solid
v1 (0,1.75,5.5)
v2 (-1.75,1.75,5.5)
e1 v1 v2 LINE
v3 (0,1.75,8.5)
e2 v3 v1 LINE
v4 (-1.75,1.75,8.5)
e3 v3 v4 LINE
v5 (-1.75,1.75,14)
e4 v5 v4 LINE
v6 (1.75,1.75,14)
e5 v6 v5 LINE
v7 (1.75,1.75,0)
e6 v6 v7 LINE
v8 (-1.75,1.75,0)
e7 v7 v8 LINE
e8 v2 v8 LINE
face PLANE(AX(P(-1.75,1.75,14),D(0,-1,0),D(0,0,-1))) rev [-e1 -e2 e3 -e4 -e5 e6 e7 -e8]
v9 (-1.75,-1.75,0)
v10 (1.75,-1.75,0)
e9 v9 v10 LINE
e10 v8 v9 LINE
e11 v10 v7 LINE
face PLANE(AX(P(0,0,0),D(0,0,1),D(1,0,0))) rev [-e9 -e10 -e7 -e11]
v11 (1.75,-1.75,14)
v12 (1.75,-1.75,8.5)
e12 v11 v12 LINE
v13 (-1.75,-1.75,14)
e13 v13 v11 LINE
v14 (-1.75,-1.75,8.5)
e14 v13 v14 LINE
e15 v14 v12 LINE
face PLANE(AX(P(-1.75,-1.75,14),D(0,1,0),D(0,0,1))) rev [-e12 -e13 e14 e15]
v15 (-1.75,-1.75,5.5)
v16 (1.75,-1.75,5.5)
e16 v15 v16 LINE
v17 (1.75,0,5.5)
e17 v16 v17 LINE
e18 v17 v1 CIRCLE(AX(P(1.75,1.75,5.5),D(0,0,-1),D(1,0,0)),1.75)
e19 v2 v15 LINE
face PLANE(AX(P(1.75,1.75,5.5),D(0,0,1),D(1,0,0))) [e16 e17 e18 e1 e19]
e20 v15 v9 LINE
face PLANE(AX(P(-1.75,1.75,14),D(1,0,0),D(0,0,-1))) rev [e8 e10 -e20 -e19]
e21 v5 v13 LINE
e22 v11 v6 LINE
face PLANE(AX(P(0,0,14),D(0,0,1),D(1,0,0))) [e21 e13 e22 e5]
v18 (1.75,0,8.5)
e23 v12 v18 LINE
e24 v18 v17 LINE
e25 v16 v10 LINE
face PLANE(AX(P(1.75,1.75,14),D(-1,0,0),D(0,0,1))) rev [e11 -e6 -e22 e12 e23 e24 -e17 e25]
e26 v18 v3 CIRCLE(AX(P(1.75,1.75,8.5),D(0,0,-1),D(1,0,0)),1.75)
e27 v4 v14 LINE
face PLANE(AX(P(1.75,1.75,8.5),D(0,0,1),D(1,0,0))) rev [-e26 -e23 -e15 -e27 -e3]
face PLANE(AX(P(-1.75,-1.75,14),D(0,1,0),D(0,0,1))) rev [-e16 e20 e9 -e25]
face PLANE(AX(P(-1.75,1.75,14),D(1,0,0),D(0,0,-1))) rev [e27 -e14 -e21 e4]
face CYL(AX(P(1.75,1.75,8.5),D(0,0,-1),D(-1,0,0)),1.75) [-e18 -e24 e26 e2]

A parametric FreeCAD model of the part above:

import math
import FreeCAD as App
import Part
import Sketcher

V = App.Vector


def add_polygon(sketch, points):
    """Adds a closed chain of lines whose ends are joined by coincident constraints."""
    first, n = sketch.GeometryCount, len(points)
    for a, b in zip(points, points[1:] + points[:1]):
        sketch.addGeometry(Part.LineSegment(App.Vector(*a, 0), App.Vector(*b, 0)), False)
    for i in range(n):
        sketch.addConstraint(Sketcher.Constraint("Coincident", first + i, 2, first + (i + 1) % n, 1))

doc = App.newDocument("Part")
params = doc.addObject("Spreadsheet::Sheet", "Params")
for row, (alias, value) in enumerate([
    ("sketch1_width", "3.5 mm"),
    ("pad1_length", "14 mm"),
    ("sketch2_radius", "1.75 mm"),
    ("pocket1_length", "1.5 mm"),
    ("pocket1_length2", "1.5 mm"),
], start=1):
    params.set(f"A{row}", alias)
    params.set(f"B{row}", "=" + value)
    params.setAlias(f"B{row}", alias)

body = doc.addObject("PartDesign::Body", "Body")

sketch1 = body.newObject("Sketcher::SketchObject", "Sketch")
sketch1.AttachmentSupport = (doc.getObject("XY_Plane"), [""])
sketch1.MapMode = "FlatFace"
add_polygon(sketch1, [(-1.8, 1.8), (-1.8, -1.8), (1.8, -1.8), (1.8, 1.8)])
sketch1.addConstraint([
    Sketcher.Constraint("Vertical", 0),
    Sketcher.Constraint("Horizontal", 1),
    Sketcher.Constraint("Vertical", 2),
    Sketcher.Constraint("Horizontal", 3),
    Sketcher.Constraint("Symmetric", 0, 2, 2, 2, -1, 1),
    Sketcher.Constraint("Equal", 3, 0),
    Sketcher.Constraint("DistanceX", 1, 1, 1, 2, 3.5),
])
sketch1.setExpression("Constraints[10]", "Params.sketch1_width")
pad1 = body.newObject("PartDesign::Pad", "Pad")
pad1.Profile = sketch1
pad1.setExpression("Length", "Params.pad1_length")

sketch2 = body.newObject("Sketcher::SketchObject", "Sketch001")
sketch2.AttachmentSupport = (doc.getObject("XY_Plane"), [""])
sketch2.MapMode = "FlatFace"
sketch2.AttachmentOffset = App.Placement(V(0, 0, 7), App.Rotation())
sketch2.addGeometry([
    Part.LineSegment(V(1.8, -1.8, 0), V(1.8, 0, 0)),
    Part.ArcOfCircle(Part.Circle(V(1.8, 1.8, 0), V(0, 0, 1), 1.8), math.radians(180), math.radians(270)),
    Part.LineSegment(V(0, 1.8, 0), V(-1.8, 1.8, 0)),
    Part.LineSegment(V(-1.8, 1.8, 0), V(-1.8, -1.8, 0)),
    Part.LineSegment(V(-1.8, -1.8, 0), V(1.8, -1.8, 0)),
], False)
sketch2.addConstraint([
    Sketcher.Constraint("Coincident", 0, 2, 1, 2),
    Sketcher.Constraint("Coincident", 1, 1, 2, 1),
    Sketcher.Constraint("Coincident", 2, 2, 3, 1),
    Sketcher.Constraint("Coincident", 3, 2, 4, 1),
    Sketcher.Constraint("Coincident", 4, 2, 0, 1),
    Sketcher.Constraint("Vertical", 0),
    Sketcher.Constraint("Horizontal", 2),
    Sketcher.Constraint("Vertical", 3),
    Sketcher.Constraint("Horizontal", 4),
    Sketcher.Constraint("Symmetric", 2, 2, 4, 2, -1, 1),
    Sketcher.Constraint("PointOnObject", 0, 2, -1),
    Sketcher.Constraint("PointOnObject", 1, 1, -2),
    Sketcher.Constraint("Vertical", 1, 3, 0, 2),
    Sketcher.Constraint("Equal", 2, 0),
    Sketcher.Constraint("Radius", 1, 1.75),
])
sketch2.setExpression("Constraints[14]", "Params.sketch2_radius")
pocket1 = body.newObject("PartDesign::Pocket", "Pocket")
pocket1.Profile = sketch2
pocket1.Type = "TwoLengths"
pocket1.setExpression("Length", "Params.pocket1_length")
pocket1.setExpression("Length2", "Params.pocket1_length2")
pocket1.Reversed = True

doc.recompute()
